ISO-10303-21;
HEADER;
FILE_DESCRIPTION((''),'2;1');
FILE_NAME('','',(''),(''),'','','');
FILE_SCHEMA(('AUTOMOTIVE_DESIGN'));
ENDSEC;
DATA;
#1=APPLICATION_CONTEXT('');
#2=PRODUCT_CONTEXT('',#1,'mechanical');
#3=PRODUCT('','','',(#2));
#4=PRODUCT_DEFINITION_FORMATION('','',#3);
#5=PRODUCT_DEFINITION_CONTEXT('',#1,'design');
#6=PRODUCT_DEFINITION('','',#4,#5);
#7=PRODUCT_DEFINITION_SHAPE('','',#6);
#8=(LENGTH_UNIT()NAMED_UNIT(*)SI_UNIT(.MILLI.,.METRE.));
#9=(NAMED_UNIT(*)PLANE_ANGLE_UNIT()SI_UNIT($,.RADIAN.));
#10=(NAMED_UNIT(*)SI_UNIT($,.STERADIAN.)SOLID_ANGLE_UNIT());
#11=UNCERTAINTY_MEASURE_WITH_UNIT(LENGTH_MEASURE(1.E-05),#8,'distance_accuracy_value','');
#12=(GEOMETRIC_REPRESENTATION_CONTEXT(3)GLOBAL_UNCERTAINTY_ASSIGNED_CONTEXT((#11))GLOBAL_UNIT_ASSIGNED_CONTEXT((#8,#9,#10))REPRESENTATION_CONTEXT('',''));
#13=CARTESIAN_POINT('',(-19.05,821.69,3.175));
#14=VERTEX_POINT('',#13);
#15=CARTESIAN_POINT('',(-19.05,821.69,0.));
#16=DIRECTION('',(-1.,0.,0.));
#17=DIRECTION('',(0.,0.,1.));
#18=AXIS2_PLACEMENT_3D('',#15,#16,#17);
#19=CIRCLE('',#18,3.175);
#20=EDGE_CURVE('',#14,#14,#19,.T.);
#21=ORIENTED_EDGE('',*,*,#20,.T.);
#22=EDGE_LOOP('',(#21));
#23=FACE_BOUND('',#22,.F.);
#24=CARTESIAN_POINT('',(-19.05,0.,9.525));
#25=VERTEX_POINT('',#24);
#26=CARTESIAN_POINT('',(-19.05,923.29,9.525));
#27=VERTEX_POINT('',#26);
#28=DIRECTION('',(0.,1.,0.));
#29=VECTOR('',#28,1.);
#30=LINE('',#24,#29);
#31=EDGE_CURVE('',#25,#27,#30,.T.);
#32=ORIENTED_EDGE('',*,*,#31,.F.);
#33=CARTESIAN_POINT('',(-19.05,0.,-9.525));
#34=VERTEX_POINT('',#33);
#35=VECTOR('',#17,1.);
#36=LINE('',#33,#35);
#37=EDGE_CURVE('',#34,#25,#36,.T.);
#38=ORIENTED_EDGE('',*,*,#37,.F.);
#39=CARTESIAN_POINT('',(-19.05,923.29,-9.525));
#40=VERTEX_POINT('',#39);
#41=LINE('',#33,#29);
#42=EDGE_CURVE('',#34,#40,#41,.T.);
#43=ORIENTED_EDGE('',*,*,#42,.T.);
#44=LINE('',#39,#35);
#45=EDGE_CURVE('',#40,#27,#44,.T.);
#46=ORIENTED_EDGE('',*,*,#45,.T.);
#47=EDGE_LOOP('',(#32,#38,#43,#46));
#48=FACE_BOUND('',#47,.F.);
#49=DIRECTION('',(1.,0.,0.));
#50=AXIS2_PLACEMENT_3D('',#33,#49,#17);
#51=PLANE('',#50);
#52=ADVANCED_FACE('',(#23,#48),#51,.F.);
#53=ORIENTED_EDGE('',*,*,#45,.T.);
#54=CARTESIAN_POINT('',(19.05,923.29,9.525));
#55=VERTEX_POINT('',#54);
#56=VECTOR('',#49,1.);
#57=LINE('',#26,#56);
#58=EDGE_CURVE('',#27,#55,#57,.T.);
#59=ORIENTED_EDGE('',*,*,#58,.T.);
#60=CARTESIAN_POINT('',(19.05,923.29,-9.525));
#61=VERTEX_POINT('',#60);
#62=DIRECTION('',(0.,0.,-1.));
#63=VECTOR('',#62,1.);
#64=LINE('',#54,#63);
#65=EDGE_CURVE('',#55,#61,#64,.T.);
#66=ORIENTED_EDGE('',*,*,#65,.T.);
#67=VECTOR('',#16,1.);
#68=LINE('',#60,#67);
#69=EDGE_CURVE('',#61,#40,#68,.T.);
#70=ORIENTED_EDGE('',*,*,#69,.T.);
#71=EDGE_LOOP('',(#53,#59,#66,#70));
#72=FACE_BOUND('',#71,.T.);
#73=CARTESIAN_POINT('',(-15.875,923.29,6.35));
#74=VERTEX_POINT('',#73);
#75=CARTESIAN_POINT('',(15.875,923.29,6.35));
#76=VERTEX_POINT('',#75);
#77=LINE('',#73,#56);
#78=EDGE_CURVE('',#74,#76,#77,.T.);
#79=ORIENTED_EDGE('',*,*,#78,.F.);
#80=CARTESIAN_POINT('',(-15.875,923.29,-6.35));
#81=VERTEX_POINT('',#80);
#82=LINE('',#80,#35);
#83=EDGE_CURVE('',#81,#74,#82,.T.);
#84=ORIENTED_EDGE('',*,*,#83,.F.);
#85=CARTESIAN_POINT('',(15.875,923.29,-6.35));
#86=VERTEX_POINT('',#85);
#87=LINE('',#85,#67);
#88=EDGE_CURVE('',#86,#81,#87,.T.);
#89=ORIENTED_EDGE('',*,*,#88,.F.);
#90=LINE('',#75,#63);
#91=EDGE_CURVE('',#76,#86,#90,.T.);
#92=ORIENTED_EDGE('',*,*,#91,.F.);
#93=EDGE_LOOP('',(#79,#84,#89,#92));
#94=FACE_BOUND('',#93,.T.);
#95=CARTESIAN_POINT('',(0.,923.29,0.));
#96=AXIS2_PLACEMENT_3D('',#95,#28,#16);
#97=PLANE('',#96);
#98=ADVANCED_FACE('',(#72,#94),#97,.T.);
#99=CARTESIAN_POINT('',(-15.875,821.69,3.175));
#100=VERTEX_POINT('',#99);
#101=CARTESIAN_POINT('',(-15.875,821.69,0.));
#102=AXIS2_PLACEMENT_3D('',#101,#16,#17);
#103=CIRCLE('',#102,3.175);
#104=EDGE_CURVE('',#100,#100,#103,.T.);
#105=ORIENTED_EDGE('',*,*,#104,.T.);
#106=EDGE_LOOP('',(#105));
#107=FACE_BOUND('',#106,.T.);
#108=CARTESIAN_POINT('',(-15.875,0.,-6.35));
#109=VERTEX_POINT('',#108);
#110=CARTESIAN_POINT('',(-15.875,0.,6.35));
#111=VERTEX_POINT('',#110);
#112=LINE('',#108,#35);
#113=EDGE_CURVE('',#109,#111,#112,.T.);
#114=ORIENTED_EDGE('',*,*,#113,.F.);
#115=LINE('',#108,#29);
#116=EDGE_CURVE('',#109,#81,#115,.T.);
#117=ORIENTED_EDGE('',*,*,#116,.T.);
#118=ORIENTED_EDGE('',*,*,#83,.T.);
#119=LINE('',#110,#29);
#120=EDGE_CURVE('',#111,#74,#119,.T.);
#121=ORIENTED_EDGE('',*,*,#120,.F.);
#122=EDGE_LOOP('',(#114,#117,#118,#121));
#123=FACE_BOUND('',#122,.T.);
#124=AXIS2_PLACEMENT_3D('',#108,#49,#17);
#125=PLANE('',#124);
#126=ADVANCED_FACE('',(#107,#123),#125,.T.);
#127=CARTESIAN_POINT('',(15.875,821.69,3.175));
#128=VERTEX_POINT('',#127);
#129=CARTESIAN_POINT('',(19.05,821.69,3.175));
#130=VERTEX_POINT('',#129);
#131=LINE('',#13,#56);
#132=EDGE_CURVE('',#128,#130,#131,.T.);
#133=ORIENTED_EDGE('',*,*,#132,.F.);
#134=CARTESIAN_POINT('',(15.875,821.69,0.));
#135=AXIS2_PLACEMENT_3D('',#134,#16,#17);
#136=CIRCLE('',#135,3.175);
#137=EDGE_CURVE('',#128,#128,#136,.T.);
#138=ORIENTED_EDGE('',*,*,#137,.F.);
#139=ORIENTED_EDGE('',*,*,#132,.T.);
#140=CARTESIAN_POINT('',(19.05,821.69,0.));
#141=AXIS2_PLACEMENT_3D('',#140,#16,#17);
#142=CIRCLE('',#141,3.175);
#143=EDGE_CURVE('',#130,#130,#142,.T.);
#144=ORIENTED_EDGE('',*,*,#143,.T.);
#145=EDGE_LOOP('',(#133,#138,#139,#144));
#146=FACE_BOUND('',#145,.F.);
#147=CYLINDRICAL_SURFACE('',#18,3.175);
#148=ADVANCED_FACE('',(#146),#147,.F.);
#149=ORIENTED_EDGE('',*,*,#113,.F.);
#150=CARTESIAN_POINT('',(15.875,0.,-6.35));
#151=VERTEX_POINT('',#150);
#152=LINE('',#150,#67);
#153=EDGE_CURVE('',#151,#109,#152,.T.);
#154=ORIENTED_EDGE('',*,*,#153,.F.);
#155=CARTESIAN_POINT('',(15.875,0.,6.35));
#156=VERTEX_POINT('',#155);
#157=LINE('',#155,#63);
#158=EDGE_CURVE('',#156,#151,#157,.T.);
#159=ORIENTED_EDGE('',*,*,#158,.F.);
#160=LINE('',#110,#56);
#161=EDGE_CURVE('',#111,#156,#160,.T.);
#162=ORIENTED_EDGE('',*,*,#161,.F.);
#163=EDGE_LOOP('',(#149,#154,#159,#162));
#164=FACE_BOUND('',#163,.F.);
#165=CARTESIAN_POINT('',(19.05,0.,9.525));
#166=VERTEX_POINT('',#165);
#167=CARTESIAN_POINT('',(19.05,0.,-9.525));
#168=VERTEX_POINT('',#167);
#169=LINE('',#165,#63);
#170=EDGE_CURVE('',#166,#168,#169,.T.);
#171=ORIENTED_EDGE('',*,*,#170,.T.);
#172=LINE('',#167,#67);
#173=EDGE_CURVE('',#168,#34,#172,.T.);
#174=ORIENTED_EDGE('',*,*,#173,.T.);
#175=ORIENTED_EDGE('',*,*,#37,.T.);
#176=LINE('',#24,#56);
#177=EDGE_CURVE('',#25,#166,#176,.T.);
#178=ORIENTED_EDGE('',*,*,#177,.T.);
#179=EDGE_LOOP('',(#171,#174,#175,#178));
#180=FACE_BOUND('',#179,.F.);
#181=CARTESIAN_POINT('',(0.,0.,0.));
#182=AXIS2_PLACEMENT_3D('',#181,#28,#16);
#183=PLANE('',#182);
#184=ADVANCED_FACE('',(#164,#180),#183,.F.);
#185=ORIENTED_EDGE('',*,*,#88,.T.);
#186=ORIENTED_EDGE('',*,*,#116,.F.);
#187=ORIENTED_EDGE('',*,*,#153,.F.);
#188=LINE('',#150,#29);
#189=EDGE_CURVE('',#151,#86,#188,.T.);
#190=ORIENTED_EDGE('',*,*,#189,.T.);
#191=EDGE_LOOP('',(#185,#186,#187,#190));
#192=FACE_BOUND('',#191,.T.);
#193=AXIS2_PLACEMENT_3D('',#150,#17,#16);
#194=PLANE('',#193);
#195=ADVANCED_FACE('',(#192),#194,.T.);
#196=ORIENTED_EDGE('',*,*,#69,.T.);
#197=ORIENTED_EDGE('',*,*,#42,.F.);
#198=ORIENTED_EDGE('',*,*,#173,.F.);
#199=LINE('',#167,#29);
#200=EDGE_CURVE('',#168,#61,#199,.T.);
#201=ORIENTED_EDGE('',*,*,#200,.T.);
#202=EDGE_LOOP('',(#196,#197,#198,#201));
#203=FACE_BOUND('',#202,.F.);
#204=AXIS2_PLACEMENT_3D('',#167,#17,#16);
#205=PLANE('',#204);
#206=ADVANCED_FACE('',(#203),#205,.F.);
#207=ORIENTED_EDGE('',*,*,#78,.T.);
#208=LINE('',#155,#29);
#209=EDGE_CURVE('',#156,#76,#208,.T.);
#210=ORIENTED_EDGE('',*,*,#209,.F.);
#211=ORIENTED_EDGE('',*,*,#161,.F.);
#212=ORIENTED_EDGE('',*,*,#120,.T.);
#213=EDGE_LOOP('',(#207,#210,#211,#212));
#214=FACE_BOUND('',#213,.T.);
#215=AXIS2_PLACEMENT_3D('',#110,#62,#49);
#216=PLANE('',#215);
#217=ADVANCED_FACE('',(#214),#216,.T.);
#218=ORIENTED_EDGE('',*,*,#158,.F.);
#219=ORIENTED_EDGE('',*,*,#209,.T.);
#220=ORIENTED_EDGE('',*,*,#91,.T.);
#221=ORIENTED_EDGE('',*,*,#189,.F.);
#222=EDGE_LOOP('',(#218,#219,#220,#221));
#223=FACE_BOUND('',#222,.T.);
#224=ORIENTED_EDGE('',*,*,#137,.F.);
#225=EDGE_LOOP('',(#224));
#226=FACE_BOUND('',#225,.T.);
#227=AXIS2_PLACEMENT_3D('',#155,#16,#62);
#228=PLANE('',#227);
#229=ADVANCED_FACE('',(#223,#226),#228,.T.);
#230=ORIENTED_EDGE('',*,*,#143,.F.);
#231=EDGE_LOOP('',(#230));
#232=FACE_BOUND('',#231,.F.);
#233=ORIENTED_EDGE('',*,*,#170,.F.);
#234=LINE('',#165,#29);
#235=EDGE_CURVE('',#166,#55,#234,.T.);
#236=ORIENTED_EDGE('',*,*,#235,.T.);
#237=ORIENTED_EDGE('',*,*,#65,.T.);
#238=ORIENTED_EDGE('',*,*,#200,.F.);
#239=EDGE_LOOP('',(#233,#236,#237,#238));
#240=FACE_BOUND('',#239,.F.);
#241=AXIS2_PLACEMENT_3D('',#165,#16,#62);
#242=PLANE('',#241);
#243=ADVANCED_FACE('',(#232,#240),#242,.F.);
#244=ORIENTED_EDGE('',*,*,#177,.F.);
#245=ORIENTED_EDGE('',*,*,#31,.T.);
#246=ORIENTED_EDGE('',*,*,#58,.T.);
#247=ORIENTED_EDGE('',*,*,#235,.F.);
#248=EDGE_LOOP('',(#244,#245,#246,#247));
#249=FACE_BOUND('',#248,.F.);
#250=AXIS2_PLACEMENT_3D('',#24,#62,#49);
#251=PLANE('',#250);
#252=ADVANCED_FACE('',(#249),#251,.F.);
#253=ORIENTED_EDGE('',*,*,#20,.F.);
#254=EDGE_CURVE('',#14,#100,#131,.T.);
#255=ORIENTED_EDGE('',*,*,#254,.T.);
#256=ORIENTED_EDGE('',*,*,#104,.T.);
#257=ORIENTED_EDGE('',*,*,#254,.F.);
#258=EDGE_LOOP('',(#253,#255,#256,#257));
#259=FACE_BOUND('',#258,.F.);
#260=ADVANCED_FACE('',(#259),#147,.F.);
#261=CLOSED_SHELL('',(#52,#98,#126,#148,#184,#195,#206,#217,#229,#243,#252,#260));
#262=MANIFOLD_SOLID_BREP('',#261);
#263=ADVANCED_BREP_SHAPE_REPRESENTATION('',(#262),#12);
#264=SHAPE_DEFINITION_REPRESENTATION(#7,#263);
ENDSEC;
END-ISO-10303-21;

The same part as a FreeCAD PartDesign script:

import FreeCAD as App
import Part
import Sketcher
Q = App.Units.Quantity

doc = App.newDocument("Part")
body = doc.addObject("PartDesign::Body", "Body")

# Sketch on XZ plane
sketch1 = doc.addObject("Sketcher::SketchObject", "Sketch")
body.addObject(sketch1)
sketch1.AttachmentSupport = (doc.XZ_Plane, [""])
sketch1.MapMode = "FlatFace"
sketch1.addGeometry([
    Part.LineSegment(App.Vector(-19.05, -9.525, 0), App.Vector(-19.05, 9.525, 0)),  # 0
    Part.LineSegment(App.Vector(-19.05, 9.525, 0), App.Vector(19.05, 9.525, 0)),  # 1
    Part.LineSegment(App.Vector(19.05, 9.525, 0), App.Vector(19.05, -9.525, 0)),  # 2
    Part.LineSegment(App.Vector(19.05, -9.525, 0), App.Vector(-19.05, -9.525, 0)),  # 3
    Part.LineSegment(App.Vector(15.875, 6.35, 0), App.Vector(-15.875, 6.35, 0)),  # 4
    Part.LineSegment(App.Vector(-15.875, 6.35, 0), App.Vector(-15.875, -6.35, 0)),  # 5
    Part.LineSegment(App.Vector(-15.875, -6.35, 0), App.Vector(15.875, -6.35, 0)),  # 6
    Part.LineSegment(App.Vector(15.875, -6.35, 0), App.Vector(15.875, 6.35, 0)),  # 7
], False)
sketch1.addConstraint([
    Sketcher.Constraint("Coincident", 0, 2, 1, 1),
    Sketcher.Constraint("Coincident", 1, 2, 2, 1),
    Sketcher.Constraint("Coincident", 2, 2, 3, 1),
    Sketcher.Constraint("Coincident", 3, 2, 0, 1),
    Sketcher.Constraint("Coincident", 4, 2, 5, 1),
    Sketcher.Constraint("Coincident", 5, 2, 6, 1),
    Sketcher.Constraint("Coincident", 6, 2, 7, 1),
    Sketcher.Constraint("Coincident", 7, 2, 4, 1),
    Sketcher.Constraint("Vertical", 0),
    Sketcher.Constraint("Horizontal", 1),
    Sketcher.Constraint("Vertical", 2),
    Sketcher.Constraint("Horizontal", 3),
    Sketcher.Constraint("Horizontal", 4),
    Sketcher.Constraint("Vertical", 5),
    Sketcher.Constraint("Horizontal", 6),
    Sketcher.Constraint("Vertical", 7),
    Sketcher.Constraint("Symmetric", 0, 2, 2, 2, -1, 1),
    Sketcher.Constraint("Symmetric", 4, 2, 6, 2, -1, 1),
    Sketcher.Constraint("DistanceX", 1, 1, 1, 2, Q("1.5 in")),
    Sketcher.Constraint("DistanceY", 0, 1, 0, 2, Q("0.75 in")),
    Sketcher.Constraint("DistanceY", 5, 2, 5, 1, Q("0.5 in")),
    Sketcher.Constraint("DistanceX", 0, 2, 4, 2, Q("0.125 in")),
])
pad1 = doc.addObject("PartDesign::Pad", "Pad")
body.addObject(pad1)
pad1.Profile = sketch1
pad1.Length = Q("36.35 in")
pad1.Reversed = True

# Sketch on YZ plane
sketch2 = doc.addObject("Sketcher::SketchObject", "Sketch001")
body.addObject(sketch2)
sketch2.AttachmentSupport = (doc.YZ_Plane, [""])
sketch2.MapMode = "FlatFace"
sketch2.AttachmentOffset = App.Placement(App.Vector(0, 0, -0.75 * 25.4), App.Rotation())
sketch2.addGeometry(Part.Circle(App.Vector(821.69, 0, 0), App.Vector(0, 0, 1), 3.175), False)
sketch2.addConstraint([
    Sketcher.Constraint("PointOnObject", 0, 3, -1),
    Sketcher.Constraint("Diameter", 0, Q("0.25 in")),
    Sketcher.Constraint("DistanceX", -1, 1, 0, 3, Q("32.35 in")),
])
pocket1 = doc.addObject("PartDesign::Pocket", "Pocket")
body.addObject(pocket1)
pocket1.Profile = sketch2
pocket1.Type = "ThroughAll"
pocket1.Reversed = True

doc.recompute()
